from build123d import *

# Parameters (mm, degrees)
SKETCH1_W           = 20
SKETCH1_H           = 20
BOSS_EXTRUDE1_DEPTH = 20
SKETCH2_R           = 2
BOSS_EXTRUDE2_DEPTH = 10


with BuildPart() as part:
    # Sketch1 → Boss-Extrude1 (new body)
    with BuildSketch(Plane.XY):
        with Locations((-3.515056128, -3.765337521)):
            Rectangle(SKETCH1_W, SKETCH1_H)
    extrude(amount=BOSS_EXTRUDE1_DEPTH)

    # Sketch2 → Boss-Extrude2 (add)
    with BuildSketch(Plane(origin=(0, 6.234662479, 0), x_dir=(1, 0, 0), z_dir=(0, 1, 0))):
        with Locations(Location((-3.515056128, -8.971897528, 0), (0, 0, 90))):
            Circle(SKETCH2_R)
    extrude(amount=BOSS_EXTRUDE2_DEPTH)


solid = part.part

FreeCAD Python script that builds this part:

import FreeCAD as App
import Part
import Sketcher

V = App.Vector


def add_polygon(sketch, points):
    """Adds a closed chain of lines whose ends are joined by coincident constraints."""
    first, n = sketch.GeometryCount, len(points)
    for a, b in zip(points, points[1:] + points[:1]):
        sketch.addGeometry(Part.LineSegment(App.Vector(*a, 0), App.Vector(*b, 0)), False)
    for i in range(n):
        sketch.addConstraint(Sketcher.Constraint("Coincident", first + i, 2, first + (i + 1) % n, 1))

doc = App.newDocument("Part")
body = doc.addObject("PartDesign::Body", "Body")

# Sketch on XY plane
sketch1 = body.newObject("Sketcher::SketchObject", "Sketch")
sketch1.AttachmentSupport = (doc.getObject("XY_Plane"), [""])
sketch1.MapMode = "FlatFace"
add_polygon(sketch1, [(-14, 6), (-14, -14), (6, -14), (6, 6)])  # lines 0-3
sketch1.addConstraint([
    Sketcher.Constraint("Vertical", 0),
    Sketcher.Constraint("Horizontal", 1),
    Sketcher.Constraint("Vertical", 2),
    Sketcher.Constraint("Horizontal", 3),
    Sketcher.Constraint("Equal", 3, 0),
    Sketcher.Constraint("DistanceX", 1, 1, 1, 2, 20.0),
    Sketcher.Constraint("DistanceX", 0, 2, -1, 1, 13.515056),
    Sketcher.Constraint("DistanceY", 0, 2, -1, 1, 13.765338),
])
pad1 = body.newObject("PartDesign::Pad", "Pad")
pad1.Profile = sketch1
pad1.Length = 20

# Sketch on XZ plane
sketch2 = body.newObject("Sketcher::SketchObject", "Sketch001")
sketch2.AttachmentSupport = (doc.getObject("XZ_Plane"), [""])
sketch2.MapMode = "FlatFace"
sketch2.AttachmentOffset = App.Placement(V(0, 0, -6.234662), App.Rotation())
sketch2.addGeometry(Part.Circle(V(-3.5, 9, 0), V(0, 0, 1), 2), False)
sketch2.addConstraint([
    Sketcher.Constraint("Diameter", 0, 4.0),
    Sketcher.Constraint("DistanceX", 0, 3, -1, 1, 3.515056),
    Sketcher.Constraint("DistanceY", -1, 1, 0, 3, 8.971898),
])
pad2 = body.newObject("PartDesign::Pad", "Pad001")
pad2.Profile = sketch2
pad2.Length = 10
pad2.Reversed = True

doc.recompute()
